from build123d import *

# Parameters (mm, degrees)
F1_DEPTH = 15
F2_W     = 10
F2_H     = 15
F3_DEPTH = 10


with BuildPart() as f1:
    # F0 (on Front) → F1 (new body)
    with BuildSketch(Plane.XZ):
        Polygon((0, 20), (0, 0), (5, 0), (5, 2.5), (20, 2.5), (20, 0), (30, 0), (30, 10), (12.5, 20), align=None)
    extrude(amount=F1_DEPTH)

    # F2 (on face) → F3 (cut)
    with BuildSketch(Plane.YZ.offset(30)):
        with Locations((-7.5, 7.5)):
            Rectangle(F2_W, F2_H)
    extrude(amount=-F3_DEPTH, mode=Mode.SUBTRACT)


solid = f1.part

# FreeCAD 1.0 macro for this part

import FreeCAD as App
import Part
import Sketcher

V = App.Vector

doc = App.newDocument("Part")
params = doc.addObject("Spreadsheet::Sheet", "Params")
for row, (alias, value) in enumerate([
    ("sketch1_width", "5 mm"),
    ("sketch1_width2", "15 mm"),
    ("sketch1_width3", "10 mm"),
    ("sketch1_height", "20 mm"),
    ("sketch1_width4", "12.5 mm"),
    ("pad1_length", "15 mm"),
    ("sketch2_width", "10 mm"),
    ("sketch2_height", "15 mm"),
    ("pocket1_length", "10 mm"),
], start=1):
    params.set(f"A{row}", alias)
    params.set(f"B{row}", "=" + value)
    params.setAlias(f"B{row}", alias)

body = doc.addObject("PartDesign::Body", "Body")

# Sketch on XZ plane
sketch1 = body.newObject("Sketcher::SketchObject", "Sketch")
sketch1.AttachmentSupport = (doc.getObject("XZ_Plane"), [""])
sketch1.MapMode = "FlatFace"
sketch1.addGeometry([
    Part.LineSegment(V(0, 20, 0), V(0, 0, 0)),  # 0
    Part.LineSegment(V(0, 0, 0), V(5, 0, 0)),  # 1
    Part.LineSegment(V(5, 0, 0), V(5, 2.5, 0)),  # 2
    Part.LineSegment(V(5, 2.5, 0), V(20, 2.5, 0)),  # 3
    Part.LineSegment(V(20, 2.5, 0), V(20, 0, 0)),  # 4
    Part.LineSegment(V(20, 0, 0), V(30, 0, 0)),  # 5
    Part.LineSegment(V(30, 0, 0), V(30, 10, 0)),  # 6
    Part.LineSegment(V(30, 10, 0), V(12.5, 20, 0)),  # 7
    Part.LineSegment(V(12.5, 20, 0), V(0, 20, 0)),  # 8
], False)
sketch1.addConstraint([
    Sketcher.Constraint("Coincident", 0, 2, 1, 1),
    Sketcher.Constraint("Coincident", 1, 2, 2, 1),
    Sketcher.Constraint("Coincident", 2, 2, 3, 1),
    Sketcher.Constraint("Coincident", 3, 2, 4, 1),
    Sketcher.Constraint("Coincident", 4, 2, 5, 1),
    Sketcher.Constraint("Coincident", 5, 2, 6, 1),
    Sketcher.Constraint("Coincident", 6, 2, 7, 1),
    Sketcher.Constraint("Coincident", 7, 2, 8, 1),
    Sketcher.Constraint("Coincident", 8, 2, 0, 1),
    Sketcher.Constraint("Vertical", 0),
    Sketcher.Constraint("Horizontal", 1),
    Sketcher.Constraint("Vertical", 2),
    Sketcher.Constraint("Horizontal", 3),
    Sketcher.Constraint("Vertical", 4),
    Sketcher.Constraint("Horizontal", 5),
    Sketcher.Constraint("Vertical", 6),
    Sketcher.Constraint("Horizontal", 8),
    Sketcher.Constraint("Coincident", 0, 2, -1, 1),
    Sketcher.Constraint("PointOnObject", 4, 2, -1),
    Sketcher.Constraint("Equal", 5, 6),
    Sketcher.Constraint("DistanceX", 1, 1, 1, 2, 5.0),
    Sketcher.Constraint("DistanceX", 3, 1, 3, 2, 15.0),
    Sketcher.Constraint("DistanceX", 5, 1, 5, 2, 10.0),
    Sketcher.Constraint("DistanceY", 0, 2, 0, 1, 20.0),
    Sketcher.Constraint("DistanceX", 8, 2, 8, 1, 12.5),
    Sketcher.Constraint("DistanceY", 2, 1, 2, 2, 2.5),
])
sketch1.setExpression("Constraints[20]", "Params.sketch1_width")
sketch1.setExpression("Constraints[21]", "Params.sketch1_width2")
sketch1.setExpression("Constraints[22]", "Params.sketch1_width3")
sketch1.setExpression("Constraints[23]", "Params.sketch1_height")
sketch1.setExpression("Constraints[24]", "Params.sketch1_width4")
pad1 = body.newObject("PartDesign::Pad", "Pad")
pad1.Profile = sketch1
pad1.setExpression("Length", "Params.pad1_length")

# Sketch on YZ plane
sketch2 = body.newObject("Sketcher::SketchObject", "Sketch001")
sketch2.AttachmentSupport = (doc.getObject("YZ_Plane"), [""])
sketch2.MapMode = "FlatFace"
sketch2.AttachmentOffset = App.Placement(V(0, 0, 30), App.Rotation())
sketch2.addGeometry([
    Part.LineSegment(V(-12, 15, 0), V(-12, 0, 0)),
    Part.LineSegment(V(-12, 0, 0), V(-2, 0, 0)),
    Part.LineSegment(V(-2, 0, 0), V(-2, 15, 0)),
    Part.LineSegment(V(-2, 15, 0), V(-12, 15, 0)),
], False)
sketch2.addConstraint([
    Sketcher.Constraint("Coincident", 0, 2, 1, 1),
    Sketcher.Constraint("Coincident", 1, 2, 2, 1),
    Sketcher.Constraint("Coincident", 2, 2, 3, 1),
    Sketcher.Constraint("Coincident", 3, 2, 0, 1),
    Sketcher.Constraint("Vertical", 0),
    Sketcher.Constraint("Horizontal", 1),
    Sketcher.Constraint("Vertical", 2),
    Sketcher.Constraint("Horizontal", 3),
    Sketcher.Constraint("PointOnObject", 0, 2, -1),
    Sketcher.Constraint("DistanceX", 1, 1, 1, 2, 10.0),
    Sketcher.Constraint("DistanceY", 0, 2, 0, 1, 15.0),
    Sketcher.Constraint("DistanceX", 0, 2, -1, 1, 12.5),
])
sketch2.setExpression("Constraints[9]", "Params.sketch2_width")
sketch2.setExpression("Constraints[10]", "Params.sketch2_height")
pocket1 = body.newObject("PartDesign::Pocket", "Pocket")
pocket1.Profile = sketch2
pocket1.setExpression("Length", "Params.pocket1_length")

doc.recompute()
